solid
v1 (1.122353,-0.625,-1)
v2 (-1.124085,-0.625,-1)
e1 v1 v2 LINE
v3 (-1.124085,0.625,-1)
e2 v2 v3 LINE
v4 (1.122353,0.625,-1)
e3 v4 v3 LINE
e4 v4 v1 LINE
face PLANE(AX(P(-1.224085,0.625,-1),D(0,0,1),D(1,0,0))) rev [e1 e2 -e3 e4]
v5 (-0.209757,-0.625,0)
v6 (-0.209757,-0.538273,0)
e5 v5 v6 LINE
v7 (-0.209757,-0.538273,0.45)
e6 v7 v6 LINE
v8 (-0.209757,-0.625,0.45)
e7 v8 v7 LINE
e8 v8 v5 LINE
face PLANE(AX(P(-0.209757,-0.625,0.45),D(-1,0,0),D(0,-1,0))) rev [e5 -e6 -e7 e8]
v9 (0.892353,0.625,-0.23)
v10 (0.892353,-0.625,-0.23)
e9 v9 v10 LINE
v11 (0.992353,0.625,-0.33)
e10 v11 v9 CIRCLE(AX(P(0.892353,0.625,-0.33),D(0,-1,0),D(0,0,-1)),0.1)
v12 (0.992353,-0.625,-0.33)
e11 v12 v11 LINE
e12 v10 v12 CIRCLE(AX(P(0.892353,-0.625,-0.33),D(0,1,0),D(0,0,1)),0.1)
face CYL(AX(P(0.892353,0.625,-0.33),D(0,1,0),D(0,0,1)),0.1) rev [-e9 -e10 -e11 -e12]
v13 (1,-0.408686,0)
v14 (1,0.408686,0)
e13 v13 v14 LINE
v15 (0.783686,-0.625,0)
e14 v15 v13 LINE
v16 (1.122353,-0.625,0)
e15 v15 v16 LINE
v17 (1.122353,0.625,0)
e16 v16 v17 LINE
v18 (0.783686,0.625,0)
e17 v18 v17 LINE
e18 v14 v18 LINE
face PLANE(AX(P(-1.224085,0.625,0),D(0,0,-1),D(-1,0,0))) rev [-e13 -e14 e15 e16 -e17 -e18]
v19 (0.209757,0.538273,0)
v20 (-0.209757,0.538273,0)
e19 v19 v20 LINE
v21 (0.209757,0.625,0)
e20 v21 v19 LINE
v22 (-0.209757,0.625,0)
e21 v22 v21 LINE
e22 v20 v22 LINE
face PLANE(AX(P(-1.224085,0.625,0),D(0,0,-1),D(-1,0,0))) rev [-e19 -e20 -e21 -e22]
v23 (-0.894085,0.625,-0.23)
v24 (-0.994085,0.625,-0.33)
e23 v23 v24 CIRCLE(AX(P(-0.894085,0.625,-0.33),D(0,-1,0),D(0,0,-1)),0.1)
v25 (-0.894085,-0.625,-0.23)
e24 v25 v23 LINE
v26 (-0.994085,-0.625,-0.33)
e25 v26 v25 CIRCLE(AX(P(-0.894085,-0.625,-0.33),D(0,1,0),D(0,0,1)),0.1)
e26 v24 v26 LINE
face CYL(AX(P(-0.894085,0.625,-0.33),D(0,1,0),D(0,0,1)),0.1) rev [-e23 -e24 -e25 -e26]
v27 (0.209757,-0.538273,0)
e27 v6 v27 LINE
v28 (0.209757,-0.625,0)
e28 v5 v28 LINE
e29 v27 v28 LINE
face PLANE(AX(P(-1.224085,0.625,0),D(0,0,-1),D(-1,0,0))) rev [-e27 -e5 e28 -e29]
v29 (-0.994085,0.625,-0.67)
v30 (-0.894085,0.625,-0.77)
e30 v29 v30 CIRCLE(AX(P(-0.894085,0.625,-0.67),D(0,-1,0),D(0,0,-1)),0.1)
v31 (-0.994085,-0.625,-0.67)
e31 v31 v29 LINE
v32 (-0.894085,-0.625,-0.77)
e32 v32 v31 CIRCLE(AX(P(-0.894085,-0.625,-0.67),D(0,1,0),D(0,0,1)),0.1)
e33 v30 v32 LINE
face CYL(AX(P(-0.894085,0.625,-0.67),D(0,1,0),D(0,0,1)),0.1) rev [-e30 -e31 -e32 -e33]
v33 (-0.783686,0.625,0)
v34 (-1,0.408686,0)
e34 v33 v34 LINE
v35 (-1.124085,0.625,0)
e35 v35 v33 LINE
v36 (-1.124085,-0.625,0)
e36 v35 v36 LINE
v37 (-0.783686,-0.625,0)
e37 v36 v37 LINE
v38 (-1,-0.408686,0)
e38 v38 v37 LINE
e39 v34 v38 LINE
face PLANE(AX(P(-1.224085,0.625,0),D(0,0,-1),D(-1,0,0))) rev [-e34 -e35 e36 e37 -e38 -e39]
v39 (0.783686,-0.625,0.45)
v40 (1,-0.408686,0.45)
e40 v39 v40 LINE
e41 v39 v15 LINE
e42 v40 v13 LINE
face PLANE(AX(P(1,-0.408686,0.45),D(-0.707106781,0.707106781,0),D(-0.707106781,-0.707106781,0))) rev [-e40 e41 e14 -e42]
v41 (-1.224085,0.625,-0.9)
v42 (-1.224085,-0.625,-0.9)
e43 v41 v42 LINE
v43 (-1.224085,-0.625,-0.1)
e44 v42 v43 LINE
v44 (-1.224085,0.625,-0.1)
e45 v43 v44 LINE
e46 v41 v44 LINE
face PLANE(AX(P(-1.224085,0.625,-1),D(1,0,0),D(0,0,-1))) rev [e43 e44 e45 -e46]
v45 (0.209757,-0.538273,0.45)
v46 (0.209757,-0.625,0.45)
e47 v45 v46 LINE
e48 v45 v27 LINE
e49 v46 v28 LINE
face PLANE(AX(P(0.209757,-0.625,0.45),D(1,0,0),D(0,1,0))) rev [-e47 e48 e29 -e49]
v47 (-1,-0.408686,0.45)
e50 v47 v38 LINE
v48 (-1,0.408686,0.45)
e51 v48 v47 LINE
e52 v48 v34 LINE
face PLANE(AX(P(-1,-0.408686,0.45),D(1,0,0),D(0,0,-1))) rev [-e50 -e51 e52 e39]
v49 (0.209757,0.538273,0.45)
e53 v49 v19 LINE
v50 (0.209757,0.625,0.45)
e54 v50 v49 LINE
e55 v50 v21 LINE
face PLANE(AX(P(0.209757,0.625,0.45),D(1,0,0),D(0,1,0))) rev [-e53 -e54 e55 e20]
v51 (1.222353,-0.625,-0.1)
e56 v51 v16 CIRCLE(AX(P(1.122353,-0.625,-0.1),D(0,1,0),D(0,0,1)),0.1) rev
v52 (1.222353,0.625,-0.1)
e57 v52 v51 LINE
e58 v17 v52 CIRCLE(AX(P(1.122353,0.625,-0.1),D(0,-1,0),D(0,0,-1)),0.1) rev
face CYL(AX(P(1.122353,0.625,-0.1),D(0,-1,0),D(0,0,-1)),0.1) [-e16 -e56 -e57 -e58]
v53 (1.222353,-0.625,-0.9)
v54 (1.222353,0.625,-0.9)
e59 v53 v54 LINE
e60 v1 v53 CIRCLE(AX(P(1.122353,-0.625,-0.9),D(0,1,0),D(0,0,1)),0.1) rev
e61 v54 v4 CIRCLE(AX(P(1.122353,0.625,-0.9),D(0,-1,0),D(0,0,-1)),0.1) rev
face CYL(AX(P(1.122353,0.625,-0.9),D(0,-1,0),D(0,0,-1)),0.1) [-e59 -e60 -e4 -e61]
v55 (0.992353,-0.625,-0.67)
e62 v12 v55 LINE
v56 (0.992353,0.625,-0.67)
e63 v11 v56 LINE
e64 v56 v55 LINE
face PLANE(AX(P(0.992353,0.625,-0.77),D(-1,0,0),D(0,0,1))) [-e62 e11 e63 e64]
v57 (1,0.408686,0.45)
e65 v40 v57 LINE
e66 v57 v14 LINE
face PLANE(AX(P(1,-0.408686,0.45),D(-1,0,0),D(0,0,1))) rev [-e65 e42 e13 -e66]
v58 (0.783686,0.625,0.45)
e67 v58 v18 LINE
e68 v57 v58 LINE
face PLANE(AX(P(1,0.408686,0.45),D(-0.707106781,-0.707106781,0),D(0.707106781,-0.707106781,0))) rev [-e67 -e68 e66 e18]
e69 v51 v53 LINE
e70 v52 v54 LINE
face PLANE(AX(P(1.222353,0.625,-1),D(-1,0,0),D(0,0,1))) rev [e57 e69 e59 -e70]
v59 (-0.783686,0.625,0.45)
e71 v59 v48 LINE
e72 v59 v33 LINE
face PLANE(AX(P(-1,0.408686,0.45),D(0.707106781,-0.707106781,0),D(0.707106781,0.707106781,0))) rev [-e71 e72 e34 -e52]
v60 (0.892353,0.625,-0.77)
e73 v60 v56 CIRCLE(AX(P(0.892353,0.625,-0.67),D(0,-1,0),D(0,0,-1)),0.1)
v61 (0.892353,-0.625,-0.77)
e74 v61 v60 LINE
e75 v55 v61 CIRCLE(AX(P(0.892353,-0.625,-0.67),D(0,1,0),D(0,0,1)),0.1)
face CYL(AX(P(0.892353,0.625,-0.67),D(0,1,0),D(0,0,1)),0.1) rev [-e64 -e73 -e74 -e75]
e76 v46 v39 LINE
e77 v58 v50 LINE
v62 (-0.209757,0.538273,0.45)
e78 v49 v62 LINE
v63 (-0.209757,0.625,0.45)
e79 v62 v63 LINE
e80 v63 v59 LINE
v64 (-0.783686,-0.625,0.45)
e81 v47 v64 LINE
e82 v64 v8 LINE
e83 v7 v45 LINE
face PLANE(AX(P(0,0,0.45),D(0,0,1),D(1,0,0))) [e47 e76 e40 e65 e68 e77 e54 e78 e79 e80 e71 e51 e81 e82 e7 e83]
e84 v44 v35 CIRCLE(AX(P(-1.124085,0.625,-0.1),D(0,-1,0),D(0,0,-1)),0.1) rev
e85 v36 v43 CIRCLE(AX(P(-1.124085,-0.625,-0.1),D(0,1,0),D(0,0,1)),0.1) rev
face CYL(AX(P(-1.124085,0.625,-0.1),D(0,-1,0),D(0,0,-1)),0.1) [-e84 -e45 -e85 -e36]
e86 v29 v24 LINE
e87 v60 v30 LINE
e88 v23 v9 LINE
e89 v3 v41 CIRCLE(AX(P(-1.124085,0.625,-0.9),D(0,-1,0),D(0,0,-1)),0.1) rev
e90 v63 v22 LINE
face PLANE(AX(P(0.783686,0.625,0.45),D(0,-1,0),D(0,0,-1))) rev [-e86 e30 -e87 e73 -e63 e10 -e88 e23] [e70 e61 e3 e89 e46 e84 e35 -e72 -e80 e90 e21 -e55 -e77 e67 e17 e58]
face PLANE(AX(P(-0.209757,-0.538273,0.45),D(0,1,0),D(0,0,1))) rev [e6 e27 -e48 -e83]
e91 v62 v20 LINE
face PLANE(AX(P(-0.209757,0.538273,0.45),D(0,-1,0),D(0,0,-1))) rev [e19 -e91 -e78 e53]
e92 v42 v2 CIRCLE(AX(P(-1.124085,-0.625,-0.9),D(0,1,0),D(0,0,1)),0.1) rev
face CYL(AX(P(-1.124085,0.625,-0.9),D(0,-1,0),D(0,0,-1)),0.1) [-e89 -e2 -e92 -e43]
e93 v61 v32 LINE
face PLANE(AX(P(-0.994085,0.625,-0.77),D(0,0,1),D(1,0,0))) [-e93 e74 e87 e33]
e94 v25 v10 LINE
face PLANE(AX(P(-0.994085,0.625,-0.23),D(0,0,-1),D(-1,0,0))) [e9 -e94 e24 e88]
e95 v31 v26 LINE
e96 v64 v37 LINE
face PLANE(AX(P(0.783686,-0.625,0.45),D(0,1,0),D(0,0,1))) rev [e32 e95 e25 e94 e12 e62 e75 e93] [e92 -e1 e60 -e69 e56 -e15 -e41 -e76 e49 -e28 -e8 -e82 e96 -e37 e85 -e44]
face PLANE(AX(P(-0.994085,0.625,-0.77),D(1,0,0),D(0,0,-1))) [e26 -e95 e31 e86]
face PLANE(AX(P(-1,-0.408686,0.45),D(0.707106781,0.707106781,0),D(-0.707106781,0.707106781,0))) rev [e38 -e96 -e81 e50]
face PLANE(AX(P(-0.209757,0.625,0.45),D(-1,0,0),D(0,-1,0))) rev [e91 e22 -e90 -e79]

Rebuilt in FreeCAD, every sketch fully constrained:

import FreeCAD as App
import Part
import Sketcher

V = App.Vector
Q = App.Units.Quantity


def edges_at(feature, points):
    """Names of the edges that pass closest to the given points."""
    edges = feature.Shape.Edges
    near = lambda p: min(range(len(edges)), key=lambda i: edges[i].distToShape(Part.Vertex(*p))[0])
    return sorted({f"Edge{near(p) + 1}" for p in points})

doc = App.newDocument("Part")
body = doc.addObject("PartDesign::Body", "Body")

# Sketch on XY plane
sketch1 = body.newObject("Sketcher::SketchObject", "Sketch")
sketch1.AttachmentSupport = (doc.getObject("XY_Plane"), [""])
sketch1.MapMode = "FlatFace"
sketch1.addGeometry([
    Part.LineSegment(V(-1, 0.41, 0), V(-1, -0.41, 0)),  # 0
    Part.LineSegment(V(-1, -0.41, 0), V(-0.78, -0.62, 0)),  # 1
    Part.LineSegment(V(-0.78, -0.62, 0), V(-0.21, -0.62, 0)),  # 2
    Part.LineSegment(V(-0.21, -0.62, 0), V(-0.21, -0.54, 0)),  # 3
    Part.LineSegment(V(-0.21, -0.54, 0), V(0.21, -0.54, 0)),  # 4
    Part.LineSegment(V(0.21, -0.54, 0), V(0.21, -0.62, 0)),  # 5
    Part.LineSegment(V(0.21, -0.62, 0), V(0.78, -0.62, 0)),  # 6
    Part.LineSegment(V(0.78, -0.62, 0), V(1, -0.41, 0)),  # 7
    Part.LineSegment(V(1, -0.41, 0), V(1, 0.41, 0)),  # 8
    Part.LineSegment(V(1, 0.41, 0), V(0.78, 0.62, 0)),  # 9
    Part.LineSegment(V(0.78, 0.62, 0), V(0.21, 0.62, 0)),  # 10
    Part.LineSegment(V(0.21, 0.62, 0), V(0.21, 0.54, 0)),  # 11
    Part.LineSegment(V(0.21, 0.54, 0), V(-0.21, 0.54, 0)),  # 12
    Part.LineSegment(V(-0.21, 0.54, 0), V(-0.21, 0.62, 0)),  # 13
    Part.LineSegment(V(-0.21, 0.62, 0), V(-0.78, 0.62, 0)),  # 14
    Part.LineSegment(V(-0.78, 0.62, 0), V(-1, 0.41, 0)),  # 15
], False)
sketch1.addConstraint([
    Sketcher.Constraint("Coincident", 0, 2, 1, 1),
    Sketcher.Constraint("Coincident", 1, 2, 2, 1),
    Sketcher.Constraint("Coincident", 2, 2, 3, 1),
    Sketcher.Constraint("Coincident", 3, 2, 4, 1),
    Sketcher.Constraint("Coincident", 4, 2, 5, 1),
    Sketcher.Constraint("Coincident", 5, 2, 6, 1),
    Sketcher.Constraint("Coincident", 6, 2, 7, 1),
    Sketcher.Constraint("Coincident", 7, 2, 8, 1),
    Sketcher.Constraint("Coincident", 8, 2, 9, 1),
    Sketcher.Constraint("Coincident", 9, 2, 10, 1),
    Sketcher.Constraint("Coincident", 10, 2, 11, 1),
    Sketcher.Constraint("Coincident", 11, 2, 12, 1),
    Sketcher.Constraint("Coincident", 12, 2, 13, 1),
    Sketcher.Constraint("Coincident", 13, 2, 14, 1),
    Sketcher.Constraint("Coincident", 14, 2, 15, 1),
    Sketcher.Constraint("Coincident", 15, 2, 0, 1),
    Sketcher.Constraint("Vertical", 0),
    Sketcher.Constraint("Horizontal", 2),
    Sketcher.Constraint("Vertical", 3),
    Sketcher.Constraint("Horizontal", 4),
    Sketcher.Constraint("Vertical", 5),
    Sketcher.Constraint("Horizontal", 6),
    Sketcher.Constraint("Vertical", 8),
    Sketcher.Constraint("Horizontal", 10),
    Sketcher.Constraint("Vertical", 11),
    Sketcher.Constraint("Horizontal", 12),
    Sketcher.Constraint("Vertical", 13),
    Sketcher.Constraint("Horizontal", 14),
    Sketcher.Constraint("Symmetric", 0, 2, 8, 2, -1, 1),
    Sketcher.Constraint("Symmetric", 1, 2, 9, 2, -1, 1),
    Sketcher.Constraint("Symmetric", 3, 2, 11, 2, -1, 1),
    Sketcher.Constraint("Symmetric", 5, 2, 13, 2, -1, 1),
    Sketcher.Constraint("Symmetric", 2, 2, 5, 2, -2),
    Sketcher.Constraint("Perpendicular", 1, 7),
    Sketcher.Constraint("Perpendicular", 9, 15),
    Sketcher.Constraint("Horizontal", 0, 2, 7, 2),
    Sketcher.Constraint("Horizontal", 8, 2, 15, 2),
    Sketcher.Constraint("Vertical", 6, 2, 9, 2),
    Sketcher.Constraint("DistanceX", 0, 2, -1, 1, Q("1 mm")),
    Sketcher.Constraint("DistanceY", 6, 2, 9, 2, Q("1.25 mm")),
    Sketcher.Constraint("DistanceX", 2, 1, 2, 2, Q("0.573929 mm")),
    Sketcher.Constraint("DistanceX", 4, 1, 4, 2, Q("0.419514 mm")),
    Sketcher.Constraint("DistanceY", 3, 1, 3, 2, Q("0.086727 mm")),
])
pad1 = body.newObject("PartDesign::Pad", "Pad")
pad1.Profile = sketch1
pad1.Length = 0.45

# Sketch on XZ plane
sketch2 = body.newObject("Sketcher::SketchObject", "Sketch001")
sketch2.AttachmentSupport = (doc.getObject("XZ_Plane"), [""])
sketch2.MapMode = "FlatFace"
sketch2.addGeometry([
    Part.LineSegment(V(-1.2, -1, 0), V(-1.2, 0, 0)),  # 0
    Part.LineSegment(V(-1.2, 0, 0), V(1.2, 0, 0)),  # 1
    Part.LineSegment(V(1.2, 0, 0), V(1.2, -1, 0)),  # 2
    Part.LineSegment(V(1.2, -1, 0), V(-1.2, -1, 0)),  # 3
    Part.LineSegment(V(1, -0.2, 0), V(-1, -0.2, 0)),  # 4
    Part.LineSegment(V(-1, -0.2, 0), V(-1, -0.8, 0)),  # 5
    Part.LineSegment(V(-1, -0.8, 0), V(1, -0.8, 0)),  # 6
    Part.LineSegment(V(1, -0.8, 0), V(1, -0.2, 0)),  # 7
], False)
sketch2.addConstraint([
    Sketcher.Constraint("Coincident", 0, 2, 1, 1),
    Sketcher.Constraint("Coincident", 1, 2, 2, 1),
    Sketcher.Constraint("Coincident", 2, 2, 3, 1),
    Sketcher.Constraint("Coincident", 3, 2, 0, 1),
    Sketcher.Constraint("Coincident", 4, 2, 5, 1),
    Sketcher.Constraint("Coincident", 5, 2, 6, 1),
    Sketcher.Constraint("Coincident", 6, 2, 7, 1),
    Sketcher.Constraint("Coincident", 7, 2, 4, 1),
    Sketcher.Constraint("Vertical", 0),
    Sketcher.Constraint("Horizontal", 1),
    Sketcher.Constraint("Vertical", 2),
    Sketcher.Constraint("Horizontal", 3),
    Sketcher.Constraint("Horizontal", 4),
    Sketcher.Constraint("Vertical", 5),
    Sketcher.Constraint("Horizontal", 6),
    Sketcher.Constraint("Vertical", 7),
    Sketcher.Constraint("PointOnObject", 0, 2, -1),
    Sketcher.Constraint("DistanceY", 0, 1, 0, 2, Q("1 mm")),
    Sketcher.Constraint("DistanceY", 5, 2, 5, 1, Q("0.54 mm")),
    Sketcher.Constraint("DistanceY", 4, 2, -1, 1, Q("0.23 mm")),
    Sketcher.Constraint("DistanceX", 0, 2, 4, 2, Q("0.23 mm")),
    Sketcher.Constraint("DistanceX", 6, 2, 2, 2, Q("0.23 mm")),
    Sketcher.Constraint("DistanceX", 1, 1, 1, 2, Q("2.446439 mm")),
    Sketcher.Constraint("DistanceX", 0, 2, -1, 1, Q("1.224085 mm")),
])
pad2 = body.newObject("PartDesign::Pad", "Pad001")
pad2.Profile = sketch2
pad2.Length = 1.25
pad2.Midplane = True
doc.recompute()

fillet = body.newObject("PartDesign::Fillet", "Fillet")
fillet.Base = (pad2, edges_at(pad2, [
    (-1.224, 0, 0),
    (1.222, 0, 0),
    (1.222, 0, -1),
    (-1.224, 0, -1),
    (0.992, 0, -0.77),
    (-0.994, 0, -0.77),
    (-0.994, 0, -0.23),
    (0.992, 0, -0.23),
]))
fillet.Radius = 0.1

doc.recompute()
